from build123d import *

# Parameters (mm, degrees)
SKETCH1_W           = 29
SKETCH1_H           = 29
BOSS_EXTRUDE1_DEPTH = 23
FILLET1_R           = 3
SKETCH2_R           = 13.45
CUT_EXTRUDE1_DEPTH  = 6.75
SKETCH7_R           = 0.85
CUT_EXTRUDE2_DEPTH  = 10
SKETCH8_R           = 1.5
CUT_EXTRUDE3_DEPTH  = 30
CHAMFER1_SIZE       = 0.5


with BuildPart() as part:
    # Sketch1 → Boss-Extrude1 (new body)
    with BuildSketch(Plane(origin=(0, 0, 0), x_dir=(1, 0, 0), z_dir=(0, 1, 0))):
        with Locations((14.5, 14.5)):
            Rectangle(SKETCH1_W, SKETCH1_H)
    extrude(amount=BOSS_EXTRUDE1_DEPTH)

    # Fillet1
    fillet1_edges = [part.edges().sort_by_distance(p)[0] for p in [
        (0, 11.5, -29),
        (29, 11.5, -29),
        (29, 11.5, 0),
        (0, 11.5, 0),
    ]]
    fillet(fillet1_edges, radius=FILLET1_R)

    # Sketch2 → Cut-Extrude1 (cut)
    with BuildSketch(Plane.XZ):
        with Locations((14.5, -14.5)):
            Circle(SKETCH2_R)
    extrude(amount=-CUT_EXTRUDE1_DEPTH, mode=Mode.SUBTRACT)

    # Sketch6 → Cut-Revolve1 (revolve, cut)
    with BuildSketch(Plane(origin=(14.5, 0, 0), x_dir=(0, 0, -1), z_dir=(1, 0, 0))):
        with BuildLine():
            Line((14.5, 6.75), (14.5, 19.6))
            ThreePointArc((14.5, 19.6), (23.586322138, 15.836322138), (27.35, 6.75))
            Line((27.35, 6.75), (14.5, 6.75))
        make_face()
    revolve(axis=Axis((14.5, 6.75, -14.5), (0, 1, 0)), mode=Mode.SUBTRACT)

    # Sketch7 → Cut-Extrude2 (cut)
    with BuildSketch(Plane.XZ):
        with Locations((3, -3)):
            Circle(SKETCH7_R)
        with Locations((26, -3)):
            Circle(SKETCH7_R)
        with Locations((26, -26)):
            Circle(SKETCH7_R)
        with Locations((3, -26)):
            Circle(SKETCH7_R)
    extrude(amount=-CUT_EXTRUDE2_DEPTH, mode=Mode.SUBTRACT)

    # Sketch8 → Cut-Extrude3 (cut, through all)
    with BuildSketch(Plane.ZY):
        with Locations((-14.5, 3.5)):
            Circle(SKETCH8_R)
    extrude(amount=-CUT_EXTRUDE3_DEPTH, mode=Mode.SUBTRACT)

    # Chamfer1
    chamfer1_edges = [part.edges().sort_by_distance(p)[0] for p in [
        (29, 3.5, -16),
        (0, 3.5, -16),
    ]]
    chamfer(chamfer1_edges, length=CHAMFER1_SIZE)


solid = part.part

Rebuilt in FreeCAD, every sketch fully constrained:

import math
import FreeCAD as App
import Part
import Sketcher
from FreeCAD import Vector
Q = App.Units.Quantity


def edges_at(feature, points):
    """Names of the edges that pass closest to the given points."""
    edges = feature.Shape.Edges
    near = lambda p: min(range(len(edges)), key=lambda i: edges[i].distToShape(Part.Vertex(*p))[0])
    return sorted({f"Edge{near(p) + 1}" for p in points})

doc = App.newDocument("Part")
body = doc.addObject("PartDesign::Body", "Body")

# Sketch on XZ plane
sketch1 = body.newObject("Sketcher::SketchObject", "Sketch")
sketch1.AttachmentSupport = (doc.getObject("XZ_Plane"), [""])
sketch1.MapMode = "FlatFace"
sketch1.addGeometry([
    Part.LineSegment(Vector(0, -29, 0), Vector(0, 0, 0)),
    Part.LineSegment(Vector(0, 0, 0), Vector(29, 0, 0)),
    Part.LineSegment(Vector(29, 0, 0), Vector(29, -29, 0)),
    Part.LineSegment(Vector(29, -29, 0), Vector(0, -29, 0)),
], False)
sketch1.addConstraint([
    Sketcher.Constraint("Coincident", 0, 2, 1, 1),
    Sketcher.Constraint("Coincident", 1, 2, 2, 1),
    Sketcher.Constraint("Coincident", 2, 2, 3, 1),
    Sketcher.Constraint("Coincident", 3, 2, 0, 1),
    Sketcher.Constraint("Vertical", 0),
    Sketcher.Constraint("Horizontal", 1),
    Sketcher.Constraint("Vertical", 2),
    Sketcher.Constraint("Horizontal", 3),
    Sketcher.Constraint("Coincident", 0, 2, -1, 1),
    Sketcher.Constraint("Equal", 3, 0),
    Sketcher.Constraint("DistanceX", 1, 1, 1, 2, Q("29 mm")),
])
pad1 = body.newObject("PartDesign::Pad", "Pad")
pad1.Profile = sketch1
pad1.Length = 23
pad1.Reversed = True
doc.recompute()

fillet = body.newObject("PartDesign::Fillet", "Fillet")
fillet.Base = (pad1, edges_at(pad1, [
    (0, 11.5, -29),
    (29, 11.5, -29),
    (29, 11.5, 0),
    (0, 11.5, 0),
]))
fillet.Radius = 3

# Sketch on XZ plane
sketch2 = body.newObject("Sketcher::SketchObject", "Sketch001")
sketch2.AttachmentSupport = (doc.getObject("XZ_Plane"), [""])
sketch2.MapMode = "FlatFace"
sketch2.addGeometry(Part.Circle(Vector(14.5, -14.5, 0), Vector(0, 0, 1), 13.45), False)
sketch2.addConstraint([
    Sketcher.Constraint("Diameter", 0, Q("26.9 mm")),
    Sketcher.Constraint("DistanceX", -1, 1, 0, 3, Q("14.5 mm")),
    Sketcher.Constraint("DistanceY", 0, 3, -1, 1, Q("14.5 mm")),
])
pocket1 = body.newObject("PartDesign::Pocket", "Pocket")
pocket1.Profile = sketch2
pocket1.Length = 6.75

# Sketch on YZ plane
sketch3 = body.newObject("Sketcher::SketchObject", "Sketch002")
sketch3.AttachmentSupport = (doc.getObject("YZ_Plane"), [""])
sketch3.MapMode = "FlatFace"
sketch3.AttachmentOffset = App.Placement(Vector(0, 0, 14.5), App.Rotation())
sketch3.addGeometry([
    Part.LineSegment(Vector(19.6, -14.5, 0), Vector(6.75, -14.5, 0)),
    Part.LineSegment(Vector(6.75, -14.5, 0), Vector(6.75, -27.35, 0)),
    Part.ArcOfCircle(Part.Circle(Vector(6.75, -14.5, 0), Vector(0, 0, 1), 12.85), math.radians(-90), math.radians(0)),
], False)
sketch3.addGeometry(Part.LineSegment(Vector(6.75, -14.5, 0), Vector(19.6, -14.5, 0)), True)  # axis
sketch3.addConstraint([
    Sketcher.Constraint("Coincident", 0, 2, 1, 1),
    Sketcher.Constraint("Coincident", 1, 2, 2, 1),
    Sketcher.Constraint("Coincident", 2, 2, 0, 1),
    Sketcher.Constraint("Horizontal", 0),
    Sketcher.Constraint("Vertical", 1),
    Sketcher.Constraint("Horizontal", 3),
    Sketcher.Constraint("Coincident", 0, 2, 2, 3),
    Sketcher.Constraint("Coincident", 3, 1, 2, 3),
    Sketcher.Constraint("Equal", 0, 3),
    Sketcher.Constraint("Radius", 2, Q("12.85 mm")),
    Sketcher.Constraint("DistanceY", 2, 3, -1, 1, Q("14.5 mm")),
    Sketcher.Constraint("DistanceX", -1, 1, 2, 2, Q("19.6 mm")),
])
groove = body.newObject("PartDesign::Groove", "Groove")
groove.Profile = sketch3
groove.ReferenceAxis = (sketch3, ["Axis0"])
groove.Angle = 360

# Sketch on XZ plane
sketch4 = body.newObject("Sketcher::SketchObject", "Sketch003")
sketch4.AttachmentSupport = (doc.getObject("XZ_Plane"), [""])
sketch4.MapMode = "FlatFace"
sketch4.addGeometry([
    Part.Circle(Vector(3, -3, 0), Vector(0, 0, 1), 0.85),
    Part.Circle(Vector(26, -3, 0), Vector(0, 0, 1), 0.85),
    Part.Circle(Vector(26, -26, 0), Vector(0, 0, 1), 0.85),
    Part.Circle(Vector(3, -26, 0), Vector(0, 0, 1), 0.85),
], False)
sketch4.addConstraint([
    Sketcher.Constraint("Equal", 0, 1),
    Sketcher.Constraint("Equal", 1, 2),
    Sketcher.Constraint("Equal", 2, 3),
    Sketcher.Constraint("Horizontal", 0, 3, 1, 3),
    Sketcher.Constraint("Horizontal", 2, 3, 3, 3),
    Sketcher.Constraint("Vertical", 1, 3, 2, 3),
    Sketcher.Constraint("Vertical", 0, 3, 3, 3),
    Sketcher.Constraint("Diameter", 0, Q("1.7 mm")),
    Sketcher.Constraint("DistanceX", -1, 1, 0, 3, Q("3 mm")),
    Sketcher.Constraint("DistanceY", 0, 3, -1, 1, Q("3 mm")),
    Sketcher.Constraint("DistanceX", -1, 1, 1, 3, Q("26 mm")),
    Sketcher.Constraint("DistanceY", 2, 3, -1, 1, Q("26 mm")),
])
pocket2 = body.newObject("PartDesign::Pocket", "Pocket001")
pocket2.Profile = sketch4
pocket2.Length = 10

# Sketch on YZ plane
sketch5 = body.newObject("Sketcher::SketchObject", "Sketch004")
sketch5.AttachmentSupport = (doc.getObject("YZ_Plane"), [""])
sketch5.MapMode = "FlatFace"
sketch5.addGeometry(Part.Circle(Vector(3.5, -14.5, 0), Vector(0, 0, 1), 1.5), False)
sketch5.addConstraint([
    Sketcher.Constraint("Diameter", 0, Q("3 mm")),
    Sketcher.Constraint("DistanceX", -1, 1, 0, 3, Q("3.5 mm")),
    Sketcher.Constraint("DistanceY", 0, 3, -1, 1, Q("14.5 mm")),
])
pocket3 = body.newObject("PartDesign::Pocket", "Pocket002")
pocket3.Profile = sketch5
pocket3.Type = "ThroughAll"
pocket3.Reversed = True
doc.recompute()

chamfer = body.newObject("PartDesign::Chamfer", "Chamfer")
chamfer.Base = (pocket3, edges_at(pocket3, [(29, 3.5, -16), (0, 3.5, -16)]))
chamfer.Size = 0.5

doc.recompute()
